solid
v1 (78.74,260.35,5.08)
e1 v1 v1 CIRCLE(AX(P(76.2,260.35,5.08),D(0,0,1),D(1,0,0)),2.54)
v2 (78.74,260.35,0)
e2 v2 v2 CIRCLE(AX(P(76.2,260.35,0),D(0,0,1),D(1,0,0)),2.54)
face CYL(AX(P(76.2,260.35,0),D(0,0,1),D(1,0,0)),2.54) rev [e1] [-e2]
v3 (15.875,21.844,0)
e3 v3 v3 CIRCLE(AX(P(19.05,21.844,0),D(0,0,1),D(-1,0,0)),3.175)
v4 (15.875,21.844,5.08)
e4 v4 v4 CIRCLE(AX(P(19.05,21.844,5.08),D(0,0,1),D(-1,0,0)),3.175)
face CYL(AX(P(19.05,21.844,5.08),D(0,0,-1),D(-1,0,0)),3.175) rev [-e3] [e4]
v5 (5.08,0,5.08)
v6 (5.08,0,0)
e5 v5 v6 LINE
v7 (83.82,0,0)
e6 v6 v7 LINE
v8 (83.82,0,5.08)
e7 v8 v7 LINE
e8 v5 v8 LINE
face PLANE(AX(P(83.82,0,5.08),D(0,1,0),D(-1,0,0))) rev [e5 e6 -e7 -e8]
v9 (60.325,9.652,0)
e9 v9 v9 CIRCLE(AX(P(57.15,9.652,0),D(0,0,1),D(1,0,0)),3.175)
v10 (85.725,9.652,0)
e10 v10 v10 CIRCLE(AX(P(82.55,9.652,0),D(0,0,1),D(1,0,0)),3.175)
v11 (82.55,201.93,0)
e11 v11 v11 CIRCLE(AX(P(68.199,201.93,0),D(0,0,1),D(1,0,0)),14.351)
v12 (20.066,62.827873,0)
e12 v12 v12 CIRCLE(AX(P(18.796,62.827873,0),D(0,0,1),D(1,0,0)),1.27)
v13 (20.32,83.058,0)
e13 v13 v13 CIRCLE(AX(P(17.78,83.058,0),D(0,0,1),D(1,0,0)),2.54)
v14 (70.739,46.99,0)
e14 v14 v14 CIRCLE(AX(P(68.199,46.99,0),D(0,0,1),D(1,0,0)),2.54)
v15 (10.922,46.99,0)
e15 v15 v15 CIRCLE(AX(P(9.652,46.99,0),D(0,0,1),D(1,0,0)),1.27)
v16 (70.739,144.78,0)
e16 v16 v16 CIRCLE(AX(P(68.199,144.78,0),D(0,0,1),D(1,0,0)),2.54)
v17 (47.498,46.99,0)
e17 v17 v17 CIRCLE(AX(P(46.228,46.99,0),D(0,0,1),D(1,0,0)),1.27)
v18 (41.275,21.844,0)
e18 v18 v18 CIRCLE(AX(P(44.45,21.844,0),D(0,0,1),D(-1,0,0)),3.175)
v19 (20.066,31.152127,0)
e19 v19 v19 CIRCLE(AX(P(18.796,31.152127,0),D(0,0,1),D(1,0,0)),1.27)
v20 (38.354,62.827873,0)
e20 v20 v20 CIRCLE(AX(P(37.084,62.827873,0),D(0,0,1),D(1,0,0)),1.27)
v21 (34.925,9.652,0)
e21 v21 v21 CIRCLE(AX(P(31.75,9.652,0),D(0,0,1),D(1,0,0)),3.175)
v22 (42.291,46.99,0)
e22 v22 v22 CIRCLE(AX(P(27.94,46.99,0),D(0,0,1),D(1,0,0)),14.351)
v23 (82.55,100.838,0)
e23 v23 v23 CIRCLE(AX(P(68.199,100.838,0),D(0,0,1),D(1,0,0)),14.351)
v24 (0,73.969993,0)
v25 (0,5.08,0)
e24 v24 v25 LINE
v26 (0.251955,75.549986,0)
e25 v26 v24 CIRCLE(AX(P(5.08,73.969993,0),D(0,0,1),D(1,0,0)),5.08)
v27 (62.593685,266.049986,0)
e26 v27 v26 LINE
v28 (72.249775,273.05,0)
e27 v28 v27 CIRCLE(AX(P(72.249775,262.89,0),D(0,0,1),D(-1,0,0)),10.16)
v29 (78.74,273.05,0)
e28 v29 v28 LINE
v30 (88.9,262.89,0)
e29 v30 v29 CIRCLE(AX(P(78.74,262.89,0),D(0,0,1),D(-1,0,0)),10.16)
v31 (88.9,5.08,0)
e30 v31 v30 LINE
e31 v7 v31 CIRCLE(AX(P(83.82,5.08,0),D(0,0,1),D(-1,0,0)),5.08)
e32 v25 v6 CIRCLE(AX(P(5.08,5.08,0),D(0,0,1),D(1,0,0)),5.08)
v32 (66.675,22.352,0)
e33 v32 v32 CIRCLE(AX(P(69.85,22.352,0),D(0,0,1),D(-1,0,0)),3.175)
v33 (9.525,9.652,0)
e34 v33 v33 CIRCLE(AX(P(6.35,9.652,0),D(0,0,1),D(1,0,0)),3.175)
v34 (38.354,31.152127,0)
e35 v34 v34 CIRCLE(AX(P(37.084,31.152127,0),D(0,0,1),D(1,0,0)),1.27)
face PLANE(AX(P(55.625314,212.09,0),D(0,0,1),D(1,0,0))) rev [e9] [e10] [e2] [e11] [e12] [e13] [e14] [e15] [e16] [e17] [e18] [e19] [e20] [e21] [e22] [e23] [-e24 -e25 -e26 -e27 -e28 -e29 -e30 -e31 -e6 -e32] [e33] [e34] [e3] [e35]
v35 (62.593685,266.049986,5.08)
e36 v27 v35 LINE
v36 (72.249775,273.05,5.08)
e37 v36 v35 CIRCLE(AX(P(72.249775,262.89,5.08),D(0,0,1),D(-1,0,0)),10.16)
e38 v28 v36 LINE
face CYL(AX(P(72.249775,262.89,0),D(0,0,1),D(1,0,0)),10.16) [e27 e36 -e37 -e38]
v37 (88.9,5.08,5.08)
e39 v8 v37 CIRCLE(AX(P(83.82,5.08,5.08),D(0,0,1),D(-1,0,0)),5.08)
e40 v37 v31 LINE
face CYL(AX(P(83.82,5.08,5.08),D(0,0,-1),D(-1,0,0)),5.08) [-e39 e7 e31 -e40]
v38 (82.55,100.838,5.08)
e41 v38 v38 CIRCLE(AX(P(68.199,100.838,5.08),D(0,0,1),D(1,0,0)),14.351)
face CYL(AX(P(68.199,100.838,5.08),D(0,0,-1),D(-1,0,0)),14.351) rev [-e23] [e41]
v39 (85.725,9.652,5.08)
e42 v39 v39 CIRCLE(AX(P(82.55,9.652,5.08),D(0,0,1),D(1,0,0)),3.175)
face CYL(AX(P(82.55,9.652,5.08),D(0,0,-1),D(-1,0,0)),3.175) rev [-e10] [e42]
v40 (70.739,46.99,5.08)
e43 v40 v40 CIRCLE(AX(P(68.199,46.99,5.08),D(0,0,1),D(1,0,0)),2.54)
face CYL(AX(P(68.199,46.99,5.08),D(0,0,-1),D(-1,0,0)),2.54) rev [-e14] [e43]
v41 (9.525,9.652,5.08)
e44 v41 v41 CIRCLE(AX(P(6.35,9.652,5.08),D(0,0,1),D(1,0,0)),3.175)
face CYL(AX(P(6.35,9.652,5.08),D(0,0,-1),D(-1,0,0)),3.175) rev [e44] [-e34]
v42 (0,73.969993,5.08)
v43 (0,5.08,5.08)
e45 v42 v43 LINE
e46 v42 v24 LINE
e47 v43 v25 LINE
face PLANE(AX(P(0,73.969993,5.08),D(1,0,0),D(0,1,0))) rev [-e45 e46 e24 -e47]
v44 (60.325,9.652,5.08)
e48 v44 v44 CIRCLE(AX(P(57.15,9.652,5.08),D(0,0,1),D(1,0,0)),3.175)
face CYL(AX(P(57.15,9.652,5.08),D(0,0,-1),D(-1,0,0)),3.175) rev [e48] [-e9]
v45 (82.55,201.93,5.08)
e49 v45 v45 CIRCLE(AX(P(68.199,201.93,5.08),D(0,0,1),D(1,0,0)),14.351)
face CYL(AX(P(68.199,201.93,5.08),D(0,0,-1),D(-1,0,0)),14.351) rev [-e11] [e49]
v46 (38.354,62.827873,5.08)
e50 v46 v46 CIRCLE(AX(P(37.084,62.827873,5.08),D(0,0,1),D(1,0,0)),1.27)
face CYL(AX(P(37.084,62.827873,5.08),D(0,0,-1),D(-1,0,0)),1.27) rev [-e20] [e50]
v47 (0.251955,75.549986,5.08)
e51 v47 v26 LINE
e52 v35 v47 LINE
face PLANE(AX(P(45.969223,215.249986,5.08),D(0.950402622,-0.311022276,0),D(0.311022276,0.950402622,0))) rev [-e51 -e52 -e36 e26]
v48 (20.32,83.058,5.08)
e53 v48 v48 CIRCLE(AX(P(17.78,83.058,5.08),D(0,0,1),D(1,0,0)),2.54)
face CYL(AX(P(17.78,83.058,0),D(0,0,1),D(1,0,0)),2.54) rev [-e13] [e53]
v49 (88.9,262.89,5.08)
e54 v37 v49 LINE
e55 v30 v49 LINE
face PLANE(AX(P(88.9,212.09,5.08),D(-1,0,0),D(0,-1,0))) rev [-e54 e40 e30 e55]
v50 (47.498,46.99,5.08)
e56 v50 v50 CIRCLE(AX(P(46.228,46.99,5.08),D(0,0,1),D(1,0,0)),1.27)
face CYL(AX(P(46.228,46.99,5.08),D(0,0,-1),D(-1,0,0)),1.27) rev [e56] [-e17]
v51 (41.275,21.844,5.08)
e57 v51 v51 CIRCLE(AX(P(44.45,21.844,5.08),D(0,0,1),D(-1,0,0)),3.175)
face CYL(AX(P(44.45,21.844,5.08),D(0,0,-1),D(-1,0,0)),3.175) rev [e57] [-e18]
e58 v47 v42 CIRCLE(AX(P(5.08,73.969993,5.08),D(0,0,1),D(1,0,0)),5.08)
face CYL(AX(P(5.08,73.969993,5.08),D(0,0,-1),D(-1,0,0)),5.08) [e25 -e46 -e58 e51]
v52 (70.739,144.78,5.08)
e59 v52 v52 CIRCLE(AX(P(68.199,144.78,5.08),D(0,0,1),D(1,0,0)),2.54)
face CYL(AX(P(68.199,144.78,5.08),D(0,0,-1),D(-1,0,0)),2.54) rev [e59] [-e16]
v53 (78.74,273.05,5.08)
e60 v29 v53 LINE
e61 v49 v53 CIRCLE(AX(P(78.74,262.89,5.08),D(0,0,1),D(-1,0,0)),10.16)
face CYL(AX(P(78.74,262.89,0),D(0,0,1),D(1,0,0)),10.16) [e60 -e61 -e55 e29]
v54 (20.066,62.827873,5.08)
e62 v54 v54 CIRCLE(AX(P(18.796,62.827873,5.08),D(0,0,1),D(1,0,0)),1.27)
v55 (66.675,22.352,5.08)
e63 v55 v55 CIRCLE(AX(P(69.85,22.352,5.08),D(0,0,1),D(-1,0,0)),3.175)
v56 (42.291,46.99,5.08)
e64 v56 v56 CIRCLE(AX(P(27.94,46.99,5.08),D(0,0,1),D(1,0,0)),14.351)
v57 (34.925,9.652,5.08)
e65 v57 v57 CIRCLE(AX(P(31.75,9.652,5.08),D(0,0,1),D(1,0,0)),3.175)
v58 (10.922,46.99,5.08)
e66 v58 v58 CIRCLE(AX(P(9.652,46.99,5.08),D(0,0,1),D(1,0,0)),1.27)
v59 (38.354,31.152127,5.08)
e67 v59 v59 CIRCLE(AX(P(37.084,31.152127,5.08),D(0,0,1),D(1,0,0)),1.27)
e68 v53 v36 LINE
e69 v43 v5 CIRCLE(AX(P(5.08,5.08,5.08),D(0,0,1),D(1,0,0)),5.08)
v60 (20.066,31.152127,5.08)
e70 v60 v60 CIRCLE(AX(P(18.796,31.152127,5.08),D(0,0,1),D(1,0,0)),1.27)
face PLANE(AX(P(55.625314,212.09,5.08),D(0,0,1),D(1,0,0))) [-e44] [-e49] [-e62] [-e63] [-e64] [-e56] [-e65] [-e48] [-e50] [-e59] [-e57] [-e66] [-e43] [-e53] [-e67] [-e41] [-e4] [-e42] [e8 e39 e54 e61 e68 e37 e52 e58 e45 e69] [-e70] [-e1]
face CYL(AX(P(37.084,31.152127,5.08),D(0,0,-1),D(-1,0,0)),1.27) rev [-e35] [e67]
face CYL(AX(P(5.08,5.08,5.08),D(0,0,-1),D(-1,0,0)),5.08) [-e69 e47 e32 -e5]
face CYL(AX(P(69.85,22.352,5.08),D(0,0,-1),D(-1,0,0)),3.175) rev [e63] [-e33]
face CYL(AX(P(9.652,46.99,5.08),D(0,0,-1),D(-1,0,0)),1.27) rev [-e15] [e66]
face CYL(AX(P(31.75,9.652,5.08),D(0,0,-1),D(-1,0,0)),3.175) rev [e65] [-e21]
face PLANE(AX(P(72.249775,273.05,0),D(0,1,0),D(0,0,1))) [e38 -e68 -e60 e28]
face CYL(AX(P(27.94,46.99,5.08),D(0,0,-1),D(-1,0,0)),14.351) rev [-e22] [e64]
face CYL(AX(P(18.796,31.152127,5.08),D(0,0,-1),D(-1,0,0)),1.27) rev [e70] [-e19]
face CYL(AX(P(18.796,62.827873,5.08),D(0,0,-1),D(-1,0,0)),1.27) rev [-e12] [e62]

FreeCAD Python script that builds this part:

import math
import FreeCAD as App
import Part
import Sketcher
from FreeCAD import Vector
Q = App.Units.Quantity

doc = App.newDocument("Part")
body = doc.addObject("PartDesign::Body", "Body")

sketch1 = doc.addObject("Sketcher::SketchObject", "Sketch")
body.addObject(sketch1)
sketch1.AttachmentSupport = (doc.XY_Plane, [""])
sketch1.MapMode = "FlatFace"
sketch1.addGeometry([
    Part.LineSegment(Vector(88.9, 5.1, 0), Vector(88.9, 212.1, 0)),
    Part.ArcOfCircle(Part.Circle(Vector(78.7, 212.1, 0), Vector(0, 0, 1), 10.2), math.radians(0), math.radians(90)),
    Part.LineSegment(Vector(78.7, 222.2, 0), Vector(55.6, 222.2, 0)),
    Part.ArcOfCircle(Part.Circle(Vector(55.6, 212.1, 0), Vector(0, 0, 1), 10.2), math.radians(90), math.radians(162)),
    Part.LineSegment(Vector(46, 215.2, 0), Vector(0.3, 75.5, 0)),
    Part.ArcOfCircle(Part.Circle(Vector(5.1, 74, 0), Vector(0, 0, 1), 5.1), math.radians(161.88), math.radians(180)),
    Part.LineSegment(Vector(0, 74, 0), Vector(0, 5.1, 0)),
    Part.ArcOfCircle(Part.Circle(Vector(5.1, 5.1, 0), Vector(0, 0, 1), 5.1), math.radians(-180), math.radians(-90)),
    Part.LineSegment(Vector(5.1, 0, 0), Vector(83.8, 0, 0)),
    Part.ArcOfCircle(Part.Circle(Vector(83.8, 5.1, 0), Vector(0, 0, 1), 5.1), math.radians(-90), math.radians(0)),
    Part.Circle(Vector(82.5, 9.7, 0), Vector(0, 0, 1), 3.2),
    Part.Circle(Vector(69.8, 22.4, 0), Vector(0, 0, 1), 3.2),
    Part.Circle(Vector(68.2, 47, 0), Vector(0, 0, 1), 2.5),
    Part.Circle(Vector(57.1, 9.7, 0), Vector(0, 0, 1), 3.2),
    Part.Circle(Vector(46.2, 47, 0), Vector(0, 0, 1), 1.3),
    Part.Circle(Vector(68.2, 100.8, 0), Vector(0, 0, 1), 14.4),
    Part.Circle(Vector(44.5, 21.8, 0), Vector(0, 0, 1), 3.2),
    Part.Circle(Vector(37.1, 31.2, 0), Vector(0, 0, 1), 1.3),
    Part.Circle(Vector(31.8, 9.7, 0), Vector(0, 0, 1), 3.2),
    Part.Circle(Vector(27.9, 47, 0), Vector(0, 0, 1), 14.4),
    Part.Circle(Vector(19.1, 21.8, 0), Vector(0, 0, 1), 3.2),
    Part.Circle(Vector(18.8, 31.2, 0), Vector(0, 0, 1), 1.3),
    Part.Circle(Vector(6.3, 9.7, 0), Vector(0, 0, 1), 3.2),
    Part.Circle(Vector(9.7, 47, 0), Vector(0, 0, 1), 1.3),
    Part.Circle(Vector(37.1, 62.8, 0), Vector(0, 0, 1), 1.3),
    Part.Circle(Vector(18.8, 62.8, 0), Vector(0, 0, 1), 1.3),
    Part.Circle(Vector(68.2, 144.8, 0), Vector(0, 0, 1), 2.5),
    Part.Circle(Vector(68.2, 201.9, 0), Vector(0, 0, 1), 14.4),
], False)
sketch1.addConstraint([
    Sketcher.Constraint("Tangent", 0, 2, 1, 1),
    Sketcher.Constraint("Tangent", 1, 2, 2, 1),
    Sketcher.Constraint("Tangent", 2, 2, 3, 1),
    Sketcher.Constraint("Tangent", 3, 2, 4, 1),
    Sketcher.Constraint("Tangent", 4, 2, 5, 1),
    Sketcher.Constraint("Tangent", 5, 2, 6, 1),
    Sketcher.Constraint("Tangent", 6, 2, 7, 1),
    Sketcher.Constraint("Tangent", 7, 2, 8, 1),
    Sketcher.Constraint("Tangent", 8, 2, 9, 1),
    Sketcher.Constraint("Tangent", 9, 2, 0, 1),
    Sketcher.Constraint("Vertical", 0),
    Sketcher.Constraint("Horizontal", 2),
    Sketcher.Constraint("Vertical", 6),
    Sketcher.Constraint("Horizontal", 8),
    Sketcher.Constraint("Equal", 1, 3),
    Sketcher.Constraint("Equal", 5, 7),
    Sketcher.Constraint("Equal", 7, 9),
    Sketcher.Constraint("Equal", 10, 11),
    Sketcher.Constraint("Equal", 11, 13),
    Sketcher.Constraint("Equal", 13, 16),
    Sketcher.Constraint("Equal", 14, 17),
    Sketcher.Constraint("Equal", 16, 18),
    Sketcher.Constraint("Equal", 15, 19),
    Sketcher.Constraint("Equal", 18, 20),
    Sketcher.Constraint("Equal", 17, 21),
    Sketcher.Constraint("Equal", 20, 22),
    Sketcher.Constraint("Equal", 21, 23),
    Sketcher.Constraint("Equal", 23, 24),
    Sketcher.Constraint("Equal", 24, 25),
    Sketcher.Constraint("Equal", 12, 26),
    Sketcher.Constraint("Equal", 19, 27),
    Sketcher.Constraint("PointOnObject", 5, 2, -2),
    Sketcher.Constraint("PointOnObject", 7, 2, -1),
    Sketcher.Constraint("Horizontal", 10, 3, 13, 3),
    Sketcher.Constraint("Horizontal", 12, 3, 14, 3),
    Sketcher.Constraint("Horizontal", 13, 3, 18, 3),
    Sketcher.Constraint("Horizontal", 14, 3, 19, 3),
    Sketcher.Constraint("Horizontal", 16, 3, 20, 3),
    Sketcher.Constraint("Horizontal", 17, 3, 21, 3),
    Sketcher.Constraint("Horizontal", 18, 3, 22, 3),
    Sketcher.Constraint("Horizontal", 19, 3, 23, 3),
    Sketcher.Constraint("Horizontal", 24, 3, 25, 3),
    Sketcher.Constraint("Vertical", 12, 3, 15, 3),
    Sketcher.Constraint("Vertical", 17, 3, 24, 3),
    Sketcher.Constraint("Vertical", 21, 3, 25, 3),
    Sketcher.Constraint("Vertical", 15, 3, 26, 3),
    Sketcher.Constraint("Vertical", 26, 3, 27, 3),
    Sketcher.Constraint("Diameter", 12, Q("0.2 in")),
    Sketcher.Constraint("Diameter", 14, Q("0.1 in")),
    Sketcher.Constraint("Radius", 1, Q("0.4 in")),
    Sketcher.Constraint("Radius", 5, Q("0.2 in")),
    Sketcher.Constraint("Diameter", 10, Q("0.25 in")),
    Sketcher.Constraint("Diameter", 15, Q("1.13 in")),
    Sketcher.Constraint("DistanceX", 8, 1, 8, 2, Q("3.1 in")),
    Sketcher.Constraint("DistanceX", 13, 3, 10, 3, Q("1 in")),
    Sketcher.Constraint("DistanceX", 16, 3, 11, 3, Q("1 in")),
    Sketcher.Constraint("DistanceX", 18, 3, 13, 3, Q("1 in")),
    Sketcher.Constraint("DistanceX", 20, 3, 16, 3, Q("1 in")),
    Sketcher.Constraint("DistanceX", 22, 3, 18, 3, Q("1 in")),
    Sketcher.Constraint("DistanceY", 0, 1, 0, 2, Q("8.15 in")),
    Sketcher.Constraint("DistanceX", -1, 1, 19, 3, Q("1.1 in")),
    Sketcher.Constraint("DistanceY", -1, 1, 26, 3, Q("5.7 in")),
    Sketcher.Constraint("DistanceX", 11, 3, 10, 3, Q("0.5 in")),
    Sketcher.Constraint("DistanceY", 10, 3, 11, 3, Q("0.5 in")),
    Sketcher.Constraint("DistanceY", 27, 3, 1, 3, Q("0.4 in")),
    Sketcher.Constraint("DistanceX", -1, 1, 10, 3, Q("3.25 in")),
    Sketcher.Constraint("DistanceY", -1, 1, 10, 3, Q("0.38 in")),
    Sketcher.Constraint("DistanceY", -1, 1, 12, 3, Q("1.85 in")),
    Sketcher.Constraint("DistanceX", -1, 1, 14, 3, Q("1.82 in")),
    Sketcher.Constraint("DistanceY", -1, 1, 15, 3, Q("3.97 in")),
    Sketcher.Constraint("DistanceY", -1, 1, 16, 3, Q("0.86 in")),
    Sketcher.Constraint("DistanceX", -1, 1, 17, 3, Q("1.46 in")),
    Sketcher.Constraint("DistanceX", -1, 1, 21, 3, Q("0.74 in")),
    Sketcher.Constraint("DistanceX", -1, 1, 23, 3, Q("0.38 in")),
    Sketcher.Constraint("DistanceX", -1, 1, 12, 3, Q("2.685 in")),
    Sketcher.Constraint("DistanceX", 2, 2, 2, 1, 23.114686),
    Sketcher.Constraint("DistanceY", 6, 2, 6, 1, 68.889993),
    Sketcher.Constraint("DistanceY", 24, 3, 5, 3, 11.142121),
    Sketcher.Constraint("DistanceY", -1, 1, 17, 3, 31.152127),
])
pad1 = doc.addObject("PartDesign::Pad", "Pad")
body.addObject(pad1)
pad1.Profile = sketch1
pad1.Length = Q("0.2 in")

sketch2 = doc.addObject("Sketcher::SketchObject", "Sketch001")
body.addObject(sketch2)
sketch2.AttachmentSupport = (doc.XY_Plane, [""])
sketch2.MapMode = "FlatFace"
sketch2.AttachmentOffset = App.Placement(Vector(0, 0, 0.2 * 25.4), App.Rotation())
sketch2.addGeometry([
    Part.LineSegment(Vector(62.6, 266, 0), Vector(46, 215.2, 0)),
    Part.LineSegment(Vector(46, 215.2, 0), Vector(55.6, 222.2, 0)),
    Part.LineSegment(Vector(55.6, 222.2, 0), Vector(78.7, 222.2, 0)),
    Part.LineSegment(Vector(78.7, 222.2, 0), Vector(88.9, 212.1, 0)),
    Part.LineSegment(Vector(88.9, 212.1, 0), Vector(88.9, 262.9, 0)),
    Part.ArcOfCircle(Part.Circle(Vector(78.7, 262.9, 0), Vector(0, 0, 1), 10.2), math.radians(0), math.radians(90)),
    Part.LineSegment(Vector(78.7, 273.1, 0), Vector(72.2, 273.1, 0)),
    Part.ArcOfCircle(Part.Circle(Vector(72.2, 262.9, 0), Vector(0, 0, 1), 10.2), math.radians(90), math.radians(162)),
    Part.Circle(Vector(76.2, 260.4, 0), Vector(0, 0, 1), 2.5),
], False)
sketch2.addConstraint([
    Sketcher.Constraint("Coincident", 0, 2, 1, 1),
    Sketcher.Constraint("Coincident", 1, 2, 2, 1),
    Sketcher.Constraint("Coincident", 2, 2, 3, 1),
    Sketcher.Constraint("Coincident", 3, 2, 4, 1),
    Sketcher.Constraint("Tangent", 4, 2, 5, 1),
    Sketcher.Constraint("Tangent", 5, 2, 6, 1),
    Sketcher.Constraint("Tangent", 6, 2, 7, 1),
    Sketcher.Constraint("Tangent", 7, 2, 0, 1),
    Sketcher.Constraint("Horizontal", 2),
    Sketcher.Constraint("Vertical", 4),
    Sketcher.Constraint("Horizontal", 6),
    Sketcher.Constraint("Equal", 5, 7),
    Sketcher.Constraint("Vertical", 5, 3, 2, 2),
    Sketcher.Constraint("Diameter", 8, Q("0.2 in")),
    Sketcher.Constraint("Radius", 5, Q("0.4 in")),
    Sketcher.Constraint("DistanceY", 4, 1, 4, 2, Q("2 in")),
    Sketcher.Constraint("DistanceX", -1, 1, 8, 3, Q("3 in")),
    Sketcher.Constraint("Angle", 3, Q("-45 deg")),
    Sketcher.Constraint("DistanceX", -1, 1, 5, 3, Q("3.1 in")),
    Sketcher.Constraint("DistanceY", 8, 3, 5, 3, Q("0.1 in")),
    Sketcher.Constraint("DistanceY", -1, 1, 5, 3, Q("10.35 in")),
    Sketcher.Constraint("Distance", 0, 53.451031),
    Sketcher.Constraint("DistanceX", 2, 1, 2, 2, 23.114686),
    Sketcher.Constraint("DistanceX", 6, 2, 6, 1, 6.490225),
    Sketcher.Constraint("DistanceX", 0, 2, 7, 3, 26.280552),
])
pad2 = doc.addObject("PartDesign::Pad", "Pad001")
body.addObject(pad2)
pad2.Profile = sketch2
pad2.Length = Q("0.2 in")
pad2.Reversed = True

sketch3 = doc.addObject("Sketcher::SketchObject", "Sketch002")
body.addObject(sketch3)
sketch3.AttachmentSupport = (doc.XY_Plane, [""])
sketch3.MapMode = "FlatFace"
sketch3.AttachmentOffset = App.Placement(Vector(0, 0, 0.2 * 25.4), App.Rotation())
sketch3.addGeometry(Part.Circle(Vector(17.8, 83.1, 0), Vector(0, 0, 1), 2.5), False)
sketch3.addConstraint([
    Sketcher.Constraint("Diameter", 0, Q("0.2 in")),
    Sketcher.Constraint("DistanceX", -1, 1, 0, 3, Q("0.7 in")),
    Sketcher.Constraint("DistanceY", -1, 1, 0, 3, Q("3.27 in")),
])
pocket1 = doc.addObject("PartDesign::Pocket", "Pocket")
body.addObject(pocket1)
pocket1.Profile = sketch3
pocket1.Type = "ThroughAll"

doc.recompute()
